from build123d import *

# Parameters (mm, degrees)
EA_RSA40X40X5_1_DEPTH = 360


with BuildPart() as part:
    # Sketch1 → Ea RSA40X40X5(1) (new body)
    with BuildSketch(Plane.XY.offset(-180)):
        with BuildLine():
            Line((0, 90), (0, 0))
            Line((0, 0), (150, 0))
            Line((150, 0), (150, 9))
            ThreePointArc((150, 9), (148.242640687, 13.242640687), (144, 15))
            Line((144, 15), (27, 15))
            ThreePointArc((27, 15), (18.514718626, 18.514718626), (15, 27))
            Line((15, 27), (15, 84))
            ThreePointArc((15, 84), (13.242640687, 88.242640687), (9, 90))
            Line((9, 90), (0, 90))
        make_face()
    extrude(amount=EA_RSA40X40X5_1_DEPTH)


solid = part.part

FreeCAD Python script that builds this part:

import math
import FreeCAD as App
import Part
import Sketcher
Q = App.Units.Quantity

doc = App.newDocument("Part")
body = doc.addObject("PartDesign::Body", "Body")

sketch1 = body.newObject("Sketcher::SketchObject", "Sketch")
sketch1.AttachmentSupport = (doc.getObject("XY_Plane"), [""])
sketch1.MapMode = "FlatFace"
sketch1.AttachmentOffset = App.Placement(App.Vector(0, 0, -180), App.Rotation())
sketch1.addGeometry(Part.LineSegment(App.Vector(0, 90, 0), App.Vector(0, 0, 0)), False)
sketch1.addGeometry(Part.LineSegment(App.Vector(0, 0, 0), App.Vector(150, 0, 0)), False)
sketch1.addGeometry(Part.LineSegment(App.Vector(150, 0, 0), App.Vector(150, 9, 0)), False)
sketch1.addGeometry(Part.ArcOfCircle(Part.Circle(App.Vector(144, 9, 0), App.Vector(0, 0, 1), 6), math.radians(0), math.radians(90)), False)
sketch1.addGeometry(Part.LineSegment(App.Vector(144, 15, 0), App.Vector(27, 15, 0)), False)
sketch1.addGeometry(Part.ArcOfCircle(Part.Circle(App.Vector(27, 27, 0), App.Vector(0, 0, 1), 12), math.radians(-180), math.radians(-90)), False)
sketch1.addGeometry(Part.LineSegment(App.Vector(15, 27, 0), App.Vector(15, 84, 0)), False)
sketch1.addGeometry(Part.ArcOfCircle(Part.Circle(App.Vector(9, 84, 0), App.Vector(0, 0, 1), 6), math.radians(0), math.radians(90)), False)
sketch1.addGeometry(Part.LineSegment(App.Vector(9, 90, 0), App.Vector(0, 90, 0)), False)
sketch1.addConstraint(Sketcher.Constraint("Coincident", 0, 2, 1, 1))
sketch1.addConstraint(Sketcher.Constraint("Coincident", 1, 2, 2, 1))
sketch1.addConstraint(Sketcher.Constraint("Tangent", 2, 2, 3, 1))
sketch1.addConstraint(Sketcher.Constraint("Tangent", 3, 2, 4, 1))
sketch1.addConstraint(Sketcher.Constraint("Tangent", 4, 2, 5, 2))
sketch1.addConstraint(Sketcher.Constraint("Tangent", 5, 1, 6, 1))
sketch1.addConstraint(Sketcher.Constraint("Tangent", 6, 2, 7, 1))
sketch1.addConstraint(Sketcher.Constraint("Tangent", 7, 2, 8, 1))
sketch1.addConstraint(Sketcher.Constraint("Coincident", 8, 2, 0, 1))
sketch1.addConstraint(Sketcher.Constraint("Vertical", 0))
sketch1.addConstraint(Sketcher.Constraint("Horizontal", 1))
sketch1.addConstraint(Sketcher.Constraint("Vertical", 2))
sketch1.addConstraint(Sketcher.Constraint("Horizontal", 4))
sketch1.addConstraint(Sketcher.Constraint("Vertical", 6))
sketch1.addConstraint(Sketcher.Constraint("Horizontal", 8))
sketch1.addConstraint(Sketcher.Constraint("Coincident", 0, 2, -1, 1))
sketch1.addConstraint(Sketcher.Constraint("Equal", 3, 7))
sketch1.addConstraint(Sketcher.Constraint("Equal", 8, 2))
sketch1.addConstraint(Sketcher.Constraint("Radius", 3, Q("6 mm")))
sketch1.addConstraint(Sketcher.Constraint("Radius", 5, Q("12 mm")))
sketch1.addConstraint(Sketcher.Constraint("DistanceX", 1, 1, 1, 2, Q("150 mm")))
sketch1.addConstraint(Sketcher.Constraint("DistanceX", 4, 2, 4, 1, Q("117 mm")))
sketch1.addConstraint(Sketcher.Constraint("DistanceY", 0, 2, 0, 1, Q("90 mm")))
pad1 = body.newObject("PartDesign::Pad", "Pad")
pad1.Profile = sketch1
pad1.Length = 360

doc.recompute()
